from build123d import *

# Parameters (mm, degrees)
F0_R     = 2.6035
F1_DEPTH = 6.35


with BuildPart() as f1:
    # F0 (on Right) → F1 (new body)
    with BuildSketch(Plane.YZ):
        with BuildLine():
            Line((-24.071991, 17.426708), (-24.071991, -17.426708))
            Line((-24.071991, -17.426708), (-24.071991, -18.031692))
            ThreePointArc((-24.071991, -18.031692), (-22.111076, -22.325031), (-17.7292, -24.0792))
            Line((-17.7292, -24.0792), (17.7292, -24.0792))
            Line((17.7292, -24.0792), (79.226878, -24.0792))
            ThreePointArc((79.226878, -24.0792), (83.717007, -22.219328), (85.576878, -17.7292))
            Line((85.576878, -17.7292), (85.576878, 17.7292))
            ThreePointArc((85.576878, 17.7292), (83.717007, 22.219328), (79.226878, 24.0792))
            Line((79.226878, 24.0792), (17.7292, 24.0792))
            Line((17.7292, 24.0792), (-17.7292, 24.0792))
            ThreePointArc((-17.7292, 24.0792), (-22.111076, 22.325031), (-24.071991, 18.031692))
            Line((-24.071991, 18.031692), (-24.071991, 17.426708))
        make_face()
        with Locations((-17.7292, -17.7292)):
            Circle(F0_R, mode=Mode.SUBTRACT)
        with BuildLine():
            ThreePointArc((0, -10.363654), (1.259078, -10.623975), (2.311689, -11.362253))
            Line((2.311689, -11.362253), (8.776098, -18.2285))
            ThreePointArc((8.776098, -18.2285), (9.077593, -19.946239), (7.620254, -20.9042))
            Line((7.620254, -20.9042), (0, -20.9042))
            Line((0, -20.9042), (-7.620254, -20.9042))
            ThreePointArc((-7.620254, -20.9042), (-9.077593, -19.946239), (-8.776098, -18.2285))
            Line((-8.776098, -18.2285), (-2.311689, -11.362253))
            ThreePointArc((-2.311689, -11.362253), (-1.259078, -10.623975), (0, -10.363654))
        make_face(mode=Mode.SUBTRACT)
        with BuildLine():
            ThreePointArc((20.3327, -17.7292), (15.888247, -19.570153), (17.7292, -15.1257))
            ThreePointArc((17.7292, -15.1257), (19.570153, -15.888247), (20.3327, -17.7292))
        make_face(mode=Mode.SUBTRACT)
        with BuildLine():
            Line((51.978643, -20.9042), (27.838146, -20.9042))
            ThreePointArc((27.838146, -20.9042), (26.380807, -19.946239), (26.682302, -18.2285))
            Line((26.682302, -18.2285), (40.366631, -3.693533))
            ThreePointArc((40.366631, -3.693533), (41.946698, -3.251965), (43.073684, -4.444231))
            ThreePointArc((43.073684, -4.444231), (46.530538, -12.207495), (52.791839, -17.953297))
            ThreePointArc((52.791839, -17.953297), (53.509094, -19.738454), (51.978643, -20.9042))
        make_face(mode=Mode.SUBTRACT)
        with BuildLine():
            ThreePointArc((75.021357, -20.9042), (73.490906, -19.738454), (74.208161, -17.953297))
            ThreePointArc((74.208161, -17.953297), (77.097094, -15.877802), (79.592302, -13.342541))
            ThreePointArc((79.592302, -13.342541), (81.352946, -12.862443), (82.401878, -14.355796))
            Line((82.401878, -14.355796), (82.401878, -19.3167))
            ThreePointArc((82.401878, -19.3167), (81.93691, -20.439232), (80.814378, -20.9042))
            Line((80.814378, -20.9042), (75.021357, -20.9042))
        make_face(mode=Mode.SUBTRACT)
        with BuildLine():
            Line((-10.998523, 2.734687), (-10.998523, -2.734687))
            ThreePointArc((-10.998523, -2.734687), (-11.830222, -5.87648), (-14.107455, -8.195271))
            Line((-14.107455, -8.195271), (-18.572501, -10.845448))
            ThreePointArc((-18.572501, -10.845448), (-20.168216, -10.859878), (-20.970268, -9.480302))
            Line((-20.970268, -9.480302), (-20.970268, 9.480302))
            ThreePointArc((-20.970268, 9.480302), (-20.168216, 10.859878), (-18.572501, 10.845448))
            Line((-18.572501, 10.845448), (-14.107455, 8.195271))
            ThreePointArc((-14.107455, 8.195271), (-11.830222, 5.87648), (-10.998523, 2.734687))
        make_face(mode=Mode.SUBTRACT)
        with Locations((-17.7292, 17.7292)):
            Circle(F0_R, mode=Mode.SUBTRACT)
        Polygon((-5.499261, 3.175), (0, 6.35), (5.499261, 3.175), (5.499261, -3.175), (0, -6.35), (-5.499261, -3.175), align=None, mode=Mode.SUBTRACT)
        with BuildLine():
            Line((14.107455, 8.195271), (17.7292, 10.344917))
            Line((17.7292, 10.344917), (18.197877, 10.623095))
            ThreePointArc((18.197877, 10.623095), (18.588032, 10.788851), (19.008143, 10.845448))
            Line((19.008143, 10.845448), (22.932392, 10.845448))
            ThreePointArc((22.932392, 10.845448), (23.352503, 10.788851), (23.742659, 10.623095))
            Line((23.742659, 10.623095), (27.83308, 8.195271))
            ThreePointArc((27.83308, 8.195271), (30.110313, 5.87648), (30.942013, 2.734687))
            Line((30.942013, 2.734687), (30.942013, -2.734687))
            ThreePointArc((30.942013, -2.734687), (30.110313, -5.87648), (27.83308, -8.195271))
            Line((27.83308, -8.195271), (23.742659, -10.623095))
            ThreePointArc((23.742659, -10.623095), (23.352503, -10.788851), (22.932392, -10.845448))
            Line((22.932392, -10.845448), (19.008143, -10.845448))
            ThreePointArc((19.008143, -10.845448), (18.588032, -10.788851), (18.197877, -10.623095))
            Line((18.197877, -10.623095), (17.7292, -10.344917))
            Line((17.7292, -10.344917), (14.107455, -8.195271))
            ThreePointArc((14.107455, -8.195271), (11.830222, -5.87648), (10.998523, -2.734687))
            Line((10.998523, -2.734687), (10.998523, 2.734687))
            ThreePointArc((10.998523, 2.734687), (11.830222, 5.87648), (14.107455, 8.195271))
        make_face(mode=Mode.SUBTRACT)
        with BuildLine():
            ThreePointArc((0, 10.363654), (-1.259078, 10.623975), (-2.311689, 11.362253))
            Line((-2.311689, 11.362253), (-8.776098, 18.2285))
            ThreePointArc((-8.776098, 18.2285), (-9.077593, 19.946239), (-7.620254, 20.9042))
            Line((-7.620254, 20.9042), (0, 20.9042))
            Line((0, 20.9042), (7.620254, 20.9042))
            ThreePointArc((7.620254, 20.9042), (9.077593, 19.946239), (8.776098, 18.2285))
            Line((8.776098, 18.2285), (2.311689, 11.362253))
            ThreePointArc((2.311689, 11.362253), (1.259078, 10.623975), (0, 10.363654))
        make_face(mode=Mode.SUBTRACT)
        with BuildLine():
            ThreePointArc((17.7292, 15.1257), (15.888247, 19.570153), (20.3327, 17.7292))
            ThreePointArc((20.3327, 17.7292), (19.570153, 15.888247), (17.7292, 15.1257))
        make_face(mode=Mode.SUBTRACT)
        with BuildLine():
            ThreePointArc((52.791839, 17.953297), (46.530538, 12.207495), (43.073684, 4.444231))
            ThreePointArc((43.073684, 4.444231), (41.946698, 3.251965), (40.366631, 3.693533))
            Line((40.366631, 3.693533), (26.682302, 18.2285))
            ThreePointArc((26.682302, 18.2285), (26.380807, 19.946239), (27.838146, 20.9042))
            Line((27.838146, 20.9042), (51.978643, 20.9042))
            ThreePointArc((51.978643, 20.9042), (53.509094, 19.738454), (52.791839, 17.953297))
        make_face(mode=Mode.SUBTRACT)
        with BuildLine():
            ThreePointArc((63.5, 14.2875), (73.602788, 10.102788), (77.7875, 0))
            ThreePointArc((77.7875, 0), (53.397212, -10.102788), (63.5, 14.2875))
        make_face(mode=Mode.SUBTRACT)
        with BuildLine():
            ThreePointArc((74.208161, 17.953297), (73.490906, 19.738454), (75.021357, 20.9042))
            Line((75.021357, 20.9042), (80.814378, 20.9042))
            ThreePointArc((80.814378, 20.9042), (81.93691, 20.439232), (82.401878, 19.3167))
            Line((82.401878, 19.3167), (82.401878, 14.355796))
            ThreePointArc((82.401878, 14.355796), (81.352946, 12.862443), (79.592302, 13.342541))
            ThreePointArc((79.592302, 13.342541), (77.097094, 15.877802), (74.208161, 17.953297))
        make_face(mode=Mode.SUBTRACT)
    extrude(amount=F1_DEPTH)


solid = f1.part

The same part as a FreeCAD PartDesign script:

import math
import FreeCAD as App
import Part
import Sketcher
Q = App.Units.Quantity

doc = App.newDocument("Part")
params = doc.addObject("Spreadsheet::Sheet", "Params")
for row, (alias, value) in enumerate([
    ("sketch1_radius", "0.25 in"),
    ("sketch1_diameter", "0.205 in"),
    ("sketch1_radius2", "0.0625 in"),
    ("sketch1_radius3", "0.8230001 in"),
    ("sketch1_radius4", "0.0624999 in"),
    ("pad1_length", "0.25 in"),
], start=1):
    params.set(f"A{row}", alias)
    params.set(f"B{row}", "=" + value)
    params.setAlias(f"B{row}", alias)

body = doc.addObject("PartDesign::Body", "Body")

# Sketch on YZ plane
sketch1 = body.newObject("Sketcher::SketchObject", "Sketch")
sketch1.AttachmentSupport = (doc.getObject("YZ_Plane"), [""])
sketch1.MapMode = "FlatFace"
sketch1.addGeometry(Part.ArcOfCircle(Part.Circle(App.Vector(-17.7, -17.7, 0), App.Vector(0, 0, 1), 6.3), math.radians(-177), math.radians(-90)), False)
sketch1.addGeometry(Part.LineSegment(App.Vector(-17.7, -24.1, 0), App.Vector(79.2, -24.1, 0)), False)
sketch1.addGeometry(Part.ArcOfCircle(Part.Circle(App.Vector(79.2, -17.7, 0), App.Vector(0, 0, 1), 6.3), math.radians(-90), math.radians(0)), False)
sketch1.addGeometry(Part.LineSegment(App.Vector(85.6, -17.7, 0), App.Vector(85.6, 17.7, 0)), False)
sketch1.addGeometry(Part.ArcOfCircle(Part.Circle(App.Vector(79.2, 17.7, 0), App.Vector(0, 0, 1), 6.3), math.radians(0), math.radians(90)), False)
sketch1.addGeometry(Part.LineSegment(App.Vector(79.2, 24.1, 0), App.Vector(-17.7, 24.1, 0)), False)
sketch1.addGeometry(Part.ArcOfCircle(Part.Circle(App.Vector(-17.7, 17.7, 0), App.Vector(0, 0, 1), 6.3), math.radians(90), math.radians(177)), False)
sketch1.addGeometry(Part.LineSegment(App.Vector(-24.1, 18, 0), App.Vector(-24.1, -18, 0)), False)
sketch1.addGeometry(Part.Circle(App.Vector(-17.7, -17.7, 0), App.Vector(0, 0, 1), 2.6), False)
sketch1.addGeometry(Part.ArcOfCircle(Part.Circle(App.Vector(0, -13.5, 0), App.Vector(0, 0, 1), 3.2), math.radians(90), math.radians(137)), False)
sketch1.addGeometry(Part.ArcOfCircle(Part.Circle(App.Vector(0, -13.5, 0), App.Vector(0, 0, 1), 3.2), math.radians(43), math.radians(90)), False)
sketch1.addGeometry(Part.LineSegment(App.Vector(2.3, -11.4, 0), App.Vector(8.8, -18.2, 0)), False)
sketch1.addGeometry(Part.ArcOfCircle(Part.Circle(App.Vector(7.6, -19.3, 0), App.Vector(0, 0, 1), 1.6), math.radians(-90), math.radians(43)), False)
sketch1.addGeometry(Part.LineSegment(App.Vector(7.6, -20.9, 0), App.Vector(-7.6, -20.9, 0)), False)
sketch1.addGeometry(Part.ArcOfCircle(Part.Circle(App.Vector(-7.6, -19.3, 0), App.Vector(0, 0, 1), 1.6), math.radians(137), math.radians(270)), False)
sketch1.addGeometry(Part.LineSegment(App.Vector(-8.8, -18.2, 0), App.Vector(-2.3, -11.4, 0)), False)
sketch1.addGeometry(Part.ArcOfCircle(Part.Circle(App.Vector(17.7, -17.7, 0), App.Vector(0, 0, 1), 2.6), math.radians(0), math.radians(90)), False)
sketch1.addGeometry(Part.ArcOfCircle(Part.Circle(App.Vector(17.7, -17.7, 0), App.Vector(0, 0, 1), 2.6), math.radians(90), math.radians(360)), False)
sketch1.addGeometry(Part.ArcOfCircle(Part.Circle(App.Vector(52, -19.3, 0), App.Vector(0, 0, 1), 1.6), math.radians(-90), math.radians(59)), False)
sketch1.addGeometry(Part.LineSegment(App.Vector(52, -20.9, 0), App.Vector(27.8, -20.9, 0)), False)
sketch1.addGeometry(Part.ArcOfCircle(Part.Circle(App.Vector(27.8, -19.3, 0), App.Vector(0, 0, 1), 1.6), math.radians(137), math.radians(270)), False)
sketch1.addGeometry(Part.LineSegment(App.Vector(26.7, -18.2, 0), App.Vector(40.4, -3.7, 0)), False)
sketch1.addGeometry(Part.ArcOfCircle(Part.Circle(App.Vector(41.5, -4.8, 0), App.Vector(0, 0, 1), 1.6), math.radians(12), math.radians(137)), False)
sketch1.addGeometry(Part.ArcOfCircle(Part.Circle(App.Vector(63.5, 0, 0), App.Vector(0, 0, 1), 20.9), math.radians(-168), math.radians(-121)), False)
sketch1.addGeometry(Part.LineSegment(App.Vector(80.8, -20.9, 0), App.Vector(75, -20.9, 0)), False)
sketch1.addGeometry(Part.ArcOfCircle(Part.Circle(App.Vector(75, -19.3, 0), App.Vector(0, 0, 1), 1.6), math.radians(121), math.radians(270)), False)
sketch1.addGeometry(Part.ArcOfCircle(Part.Circle(App.Vector(63.5, 0, 0), App.Vector(0, 0, 1), 20.9), math.radians(-59.19), math.radians(-39.66)), False)
sketch1.addGeometry(Part.ArcOfCircle(Part.Circle(App.Vector(80.8, -14.4, 0), App.Vector(0, 0, 1), 1.6), math.radians(0), math.radians(140)), False)
sketch1.addGeometry(Part.LineSegment(App.Vector(82.4, -14.4, 0), App.Vector(82.4, -19.3, 0)), False)
sketch1.addGeometry(Part.ArcOfCircle(Part.Circle(App.Vector(80.8, -19.3, 0), App.Vector(0, 0, 1), 1.6), math.radians(-90), math.radians(0)), False)
sketch1.addGeometry(Part.ArcOfCircle(Part.Circle(App.Vector(-17.3, 2.7, 0), App.Vector(0, 0, 1), 6.3), math.radians(0), math.radians(59)), False)
sketch1.addGeometry(Part.LineSegment(App.Vector(-11, 2.7, 0), App.Vector(-11, -2.7, 0)), False)
sketch1.addGeometry(Part.ArcOfCircle(Part.Circle(App.Vector(-17.3, -2.7, 0), App.Vector(0, 0, 1), 6.3), math.radians(-59), math.radians(0)), False)
sketch1.addGeometry(Part.LineSegment(App.Vector(-14.1, -8.2, 0), App.Vector(-18.6, -10.8, 0)), False)
sketch1.addGeometry(Part.ArcOfCircle(Part.Circle(App.Vector(-19.4, -9.5, 0), App.Vector(0, 0, 1), 1.6), math.radians(180), math.radians(301)), False)
sketch1.addGeometry(Part.LineSegment(App.Vector(-21, -9.5, 0), App.Vector(-21, 9.5, 0)), False)
sketch1.addGeometry(Part.ArcOfCircle(Part.Circle(App.Vector(-19.4, 9.5, 0), App.Vector(0, 0, 1), 1.6), math.radians(59), math.radians(180)), False)
sketch1.addGeometry(Part.LineSegment(App.Vector(-18.6, 10.8, 0), App.Vector(-14.1, 8.2, 0)), False)
sketch1.addGeometry(Part.LineSegment(App.Vector(-5.5, -3.2, 0), App.Vector(-5.5, 3.2, 0)), False)
sketch1.addGeometry(Part.LineSegment(App.Vector(-5.5, 3.2, 0), App.Vector(0, 6.3, 0)), False)
sketch1.addGeometry(Part.LineSegment(App.Vector(0, 6.3, 0), App.Vector(5.5, 3.2, 0)), False)
sketch1.addGeometry(Part.LineSegment(App.Vector(5.5, 3.2, 0), App.Vector(5.5, -3.2, 0)), False)
sketch1.addGeometry(Part.LineSegment(App.Vector(5.5, -3.2, 0), App.Vector(0, -6.3, 0)), False)
sketch1.addGeometry(Part.LineSegment(App.Vector(0, -6.3, 0), App.Vector(-5.5, -3.2, 0)), False)
sketch1.addGeometry(Part.ArcOfCircle(Part.Circle(App.Vector(17.3, 2.7, 0), App.Vector(0, 0, 1), 6.3), math.radians(121), math.radians(180)), False)
sketch1.addGeometry(Part.LineSegment(App.Vector(14.1, 8.2, 0), App.Vector(17.7, 10.3, 0)), False)
sketch1.addGeometry(Part.LineSegment(App.Vector(17.7, 10.3, 0), App.Vector(18.2, 10.6, 0)), False)
sketch1.addGeometry(Part.ArcOfCircle(Part.Circle(App.Vector(19, 9.3, 0), App.Vector(0, 0, 1), 1.6), math.radians(90), math.radians(121)), False)
sketch1.addGeometry(Part.LineSegment(App.Vector(19, 10.8, 0), App.Vector(22.9, 10.8, 0)), False)
sketch1.addGeometry(Part.ArcOfCircle(Part.Circle(App.Vector(22.9, 9.3, 0), App.Vector(0, 0, 1), 1.6), math.radians(59), math.radians(90)), False)
sketch1.addGeometry(Part.LineSegment(App.Vector(23.7, 10.6, 0), App.Vector(27.8, 8.2, 0)), False)
sketch1.addGeometry(Part.ArcOfCircle(Part.Circle(App.Vector(24.6, 2.7, 0), App.Vector(0, 0, 1), 6.3), math.radians(0), math.radians(59)), False)
sketch1.addGeometry(Part.LineSegment(App.Vector(30.9, 2.7, 0), App.Vector(30.9, -2.7, 0)), False)
sketch1.addGeometry(Part.ArcOfCircle(Part.Circle(App.Vector(24.6, -2.7, 0), App.Vector(0, 0, 1), 6.3), math.radians(-59), math.radians(0)), False)
sketch1.addGeometry(Part.LineSegment(App.Vector(27.8, -8.2, 0), App.Vector(23.7, -10.6, 0)), False)
sketch1.addGeometry(Part.ArcOfCircle(Part.Circle(App.Vector(22.9, -9.3, 0), App.Vector(0, 0, 1), 1.6), math.radians(-90), math.radians(-59)), False)
sketch1.addGeometry(Part.LineSegment(App.Vector(22.9, -10.8, 0), App.Vector(19, -10.8, 0)), False)
sketch1.addGeometry(Part.ArcOfCircle(Part.Circle(App.Vector(19, -9.3, 0), App.Vector(0, 0, 1), 1.6), math.radians(-121), math.radians(-90)), False)
sketch1.addGeometry(Part.LineSegment(App.Vector(18.2, -10.6, 0), App.Vector(17.7, -10.3, 0)), False)
sketch1.addGeometry(Part.LineSegment(App.Vector(17.7, -10.3, 0), App.Vector(14.1, -8.2, 0)), False)
sketch1.addGeometry(Part.ArcOfCircle(Part.Circle(App.Vector(17.3, -2.7, 0), App.Vector(0, 0, 1), 6.3), math.radians(180), math.radians(239)), False)
sketch1.addGeometry(Part.LineSegment(App.Vector(11, -2.7, 0), App.Vector(11, 2.7, 0)), False)
sketch1.addGeometry(Part.ArcOfCircle(Part.Circle(App.Vector(0, 13.5, 0), App.Vector(0, 0, 1), 3.2), math.radians(-90), math.radians(-43)), False)
sketch1.addGeometry(Part.ArcOfCircle(Part.Circle(App.Vector(0, 13.5, 0), App.Vector(0, 0, 1), 3.2), math.radians(-137), math.radians(-90)), False)
sketch1.addGeometry(Part.LineSegment(App.Vector(-2.3, 11.4, 0), App.Vector(-8.8, 18.2, 0)), False)
sketch1.addGeometry(Part.ArcOfCircle(Part.Circle(App.Vector(-7.6, 19.3, 0), App.Vector(0, 0, 1), 1.6), math.radians(90), math.radians(223)), False)
sketch1.addGeometry(Part.LineSegment(App.Vector(-7.6, 20.9, 0), App.Vector(7.6, 20.9, 0)), False)
sketch1.addGeometry(Part.ArcOfCircle(Part.Circle(App.Vector(7.6, 19.3, 0), App.Vector(0, 0, 1), 1.6), math.radians(-43), math.radians(90)), False)
sketch1.addGeometry(Part.LineSegment(App.Vector(8.8, 18.2, 0), App.Vector(2.3, 11.4, 0)), False)
sketch1.addGeometry(Part.Circle(App.Vector(-17.7, 17.7, 0), App.Vector(0, 0, 1), 2.6), False)
sketch1.addGeometry(Part.ArcOfCircle(Part.Circle(App.Vector(17.7, 17.7, 0), App.Vector(0, 0, 1), 2.6), math.radians(-90), math.radians(0)), False)
sketch1.addGeometry(Part.ArcOfCircle(Part.Circle(App.Vector(17.7, 17.7, 0), App.Vector(0, 0, 1), 2.6), math.radians(0), math.radians(270)), False)
sketch1.addGeometry(Part.ArcOfCircle(Part.Circle(App.Vector(63.5, 0, 0), App.Vector(0, 0, 1), 14.3), math.radians(90), math.radians(360)), False)
sketch1.addGeometry(Part.ArcOfCircle(Part.Circle(App.Vector(63.5, 0, 0), App.Vector(0, 0, 1), 14.3), math.radians(0), math.radians(90)), False)
sketch1.addGeometry(Part.ArcOfCircle(Part.Circle(App.Vector(52, 19.3, 0), App.Vector(0, 0, 1), 1.6), math.radians(-59), math.radians(90)), False)
sketch1.addGeometry(Part.ArcOfCircle(Part.Circle(App.Vector(63.5, 0, 0), App.Vector(0, 0, 1), 20.9), math.radians(121), math.radians(168)), False)
sketch1.addGeometry(Part.ArcOfCircle(Part.Circle(App.Vector(41.5, 4.8, 0), App.Vector(0, 0, 1), 1.6), math.radians(-137), math.radians(-12)), False)
sketch1.addGeometry(Part.LineSegment(App.Vector(40.4, 3.7, 0), App.Vector(26.7, 18.2, 0)), False)
sketch1.addGeometry(Part.ArcOfCircle(Part.Circle(App.Vector(27.8, 19.3, 0), App.Vector(0, 0, 1), 1.6), math.radians(90), math.radians(223)), False)
sketch1.addGeometry(Part.LineSegment(App.Vector(27.8, 20.9, 0), App.Vector(52, 20.9, 0)), False)
sketch1.addGeometry(Part.ArcOfCircle(Part.Circle(App.Vector(63.5, 0, 0), App.Vector(0, 0, 1), 20.9), math.radians(39.66), math.radians(59.19)), False)
sketch1.addGeometry(Part.ArcOfCircle(Part.Circle(App.Vector(75, 19.3, 0), App.Vector(0, 0, 1), 1.6), math.radians(90), math.radians(239)), False)
sketch1.addGeometry(Part.LineSegment(App.Vector(75, 20.9, 0), App.Vector(80.8, 20.9, 0)), False)
sketch1.addGeometry(Part.ArcOfCircle(Part.Circle(App.Vector(80.8, 19.3, 0), App.Vector(0, 0, 1), 1.6), math.radians(0), math.radians(90)), False)
sketch1.addGeometry(Part.LineSegment(App.Vector(82.4, 19.3, 0), App.Vector(82.4, 14.4, 0)), False)
sketch1.addGeometry(Part.ArcOfCircle(Part.Circle(App.Vector(80.8, 14.4, 0), App.Vector(0, 0, 1), 1.6), math.radians(-140), math.radians(0)), False)
sketch1.addConstraint(Sketcher.Constraint("Tangent", 0, 2, 1, 1))
sketch1.addConstraint(Sketcher.Constraint("Tangent", 1, 2, 2, 1))
sketch1.addConstraint(Sketcher.Constraint("Tangent", 2, 2, 3, 1))
sketch1.addConstraint(Sketcher.Constraint("Tangent", 3, 2, 4, 1))
sketch1.addConstraint(Sketcher.Constraint("Tangent", 4, 2, 5, 1))
sketch1.addConstraint(Sketcher.Constraint("Tangent", 5, 2, 6, 1))
sketch1.addConstraint(Sketcher.Constraint("Coincident", 6, 2, 7, 1))
sketch1.addConstraint(Sketcher.Constraint("Coincident", 7, 2, 0, 1))
sketch1.addConstraint(Sketcher.Constraint("Coincident", 9, 1, 10, 2))
sketch1.addConstraint(Sketcher.Constraint("Tangent", 10, 1, 11, 1))
sketch1.addConstraint(Sketcher.Constraint("Tangent", 11, 2, 12, 2))
sketch1.addConstraint(Sketcher.Constraint("Tangent", 12, 1, 13, 1))
sketch1.addConstraint(Sketcher.Constraint("Tangent", 13, 2, 14, 2))
sketch1.addConstraint(Sketcher.Constraint("Tangent", 14, 1, 15, 1))
sketch1.addConstraint(Sketcher.Constraint("Tangent", 15, 2, 9, 2))
sketch1.addConstraint(Sketcher.Constraint("Tangent", 16, 1, 17, 2))
sketch1.addConstraint(Sketcher.Constraint("Coincident", 17, 1, 16, 2))
sketch1.addConstraint(Sketcher.Constraint("Tangent", 18, 1, 19, 1))
sketch1.addConstraint(Sketcher.Constraint("Tangent", 19, 2, 20, 2))
sketch1.addConstraint(Sketcher.Constraint("Tangent", 20, 1, 21, 1))
sketch1.addConstraint(Sketcher.Constraint("Tangent", 21, 2, 22, 2))
sketch1.addConstraint(Sketcher.Constraint("Tangent", 22, 1, 23, 1))
sketch1.addConstraint(Sketcher.Constraint("Tangent", 23, 2, 18, 2))
sketch1.addConstraint(Sketcher.Constraint("Tangent", 24, 2, 25, 2))
sketch1.addConstraint(Sketcher.Constraint("Tangent", 25, 1, 26, 1))
sketch1.addConstraint(Sketcher.Constraint("Tangent", 26, 2, 27, 2))
sketch1.addConstraint(Sketcher.Constraint("Tangent", 27, 1, 28, 1))
sketch1.addConstraint(Sketcher.Constraint("Tangent", 28, 2, 29, 2))
sketch1.addConstraint(Sketcher.Constraint("Tangent", 29, 1, 24, 1))
sketch1.addConstraint(Sketcher.Constraint("Tangent", 30, 1, 31, 1))
sketch1.addConstraint(Sketcher.Constraint("Tangent", 31, 2, 32, 2))
sketch1.addConstraint(Sketcher.Constraint("Tangent", 32, 1, 33, 1))
sketch1.addConstraint(Sketcher.Constraint("Tangent", 33, 2, 34, 2))
sketch1.addConstraint(Sketcher.Constraint("Tangent", 34, 1, 35, 1))
sketch1.addConstraint(Sketcher.Constraint("Tangent", 35, 2, 36, 2))
sketch1.addConstraint(Sketcher.Constraint("Tangent", 36, 1, 37, 1))
sketch1.addConstraint(Sketcher.Constraint("Tangent", 37, 2, 30, 2))
sketch1.addConstraint(Sketcher.Constraint("Coincident", 38, 2, 39, 1))
sketch1.addConstraint(Sketcher.Constraint("Coincident", 39, 2, 40, 1))
sketch1.addConstraint(Sketcher.Constraint("Coincident", 40, 2, 41, 1))
sketch1.addConstraint(Sketcher.Constraint("Coincident", 41, 2, 42, 1))
sketch1.addConstraint(Sketcher.Constraint("Coincident", 42, 2, 43, 1))
sketch1.addConstraint(Sketcher.Constraint("Coincident", 43, 2, 38, 1))
sketch1.addConstraint(Sketcher.Constraint("Tangent", 44, 1, 45, 1))
sketch1.addConstraint(Sketcher.Constraint("Coincident", 45, 2, 46, 1))
sketch1.addConstraint(Sketcher.Constraint("Tangent", 46, 2, 47, 2))
sketch1.addConstraint(Sketcher.Constraint("Tangent", 47, 1, 48, 1))
sketch1.addConstraint(Sketcher.Constraint("Tangent", 48, 2, 49, 2))
sketch1.addConstraint(Sketcher.Constraint("Tangent", 49, 1, 50, 1))
sketch1.addConstraint(Sketcher.Constraint("Tangent", 50, 2, 51, 2))
sketch1.addConstraint(Sketcher.Constraint("Tangent", 51, 1, 52, 1))
sketch1.addConstraint(Sketcher.Constraint("Tangent", 52, 2, 53, 2))
sketch1.addConstraint(Sketcher.Constraint("Tangent", 53, 1, 54, 1))
sketch1.addConstraint(Sketcher.Constraint("Tangent", 54, 2, 55, 2))
sketch1.addConstraint(Sketcher.Constraint("Tangent", 55, 1, 56, 1))
sketch1.addConstraint(Sketcher.Constraint("Tangent", 56, 2, 57, 2))
sketch1.addConstraint(Sketcher.Constraint("Tangent", 57, 1, 58, 1))
sketch1.addConstraint(Sketcher.Constraint("Coincident", 58, 2, 59, 1))
sketch1.addConstraint(Sketcher.Constraint("Tangent", 59, 2, 60, 2))
sketch1.addConstraint(Sketcher.Constraint("Tangent", 60, 1, 61, 1))
sketch1.addConstraint(Sketcher.Constraint("Tangent", 61, 2, 44, 2))
sketch1.addConstraint(Sketcher.Constraint("Coincident", 62, 1, 63, 2))
sketch1.addConstraint(Sketcher.Constraint("Tangent", 63, 1, 64, 1))
sketch1.addConstraint(Sketcher.Constraint("Tangent", 64, 2, 65, 2))
sketch1.addConstraint(Sketcher.Constraint("Tangent", 65, 1, 66, 1))
sketch1.addConstraint(Sketcher.Constraint("Tangent", 66, 2, 67, 2))
sketch1.addConstraint(Sketcher.Constraint("Tangent", 67, 1, 68, 1))
sketch1.addConstraint(Sketcher.Constraint("Tangent", 68, 2, 62, 2))
sketch1.addConstraint(Sketcher.Constraint("Tangent", 70, 1, 71, 2))
sketch1.addConstraint(Sketcher.Constraint("Coincident", 71, 1, 70, 2))
sketch1.addConstraint(Sketcher.Constraint("Tangent", 72, 1, 73, 2))
sketch1.addConstraint(Sketcher.Constraint("Coincident", 73, 1, 72, 2))
sketch1.addConstraint(Sketcher.Constraint("Tangent", 74, 1, 75, 1))
sketch1.addConstraint(Sketcher.Constraint("Tangent", 75, 2, 76, 2))
sketch1.addConstraint(Sketcher.Constraint("Tangent", 76, 1, 77, 1))
sketch1.addConstraint(Sketcher.Constraint("Tangent", 77, 2, 78, 2))
sketch1.addConstraint(Sketcher.Constraint("Tangent", 78, 1, 79, 1))
sketch1.addConstraint(Sketcher.Constraint("Tangent", 79, 2, 74, 2))
sketch1.addConstraint(Sketcher.Constraint("Tangent", 80, 2, 81, 2))
sketch1.addConstraint(Sketcher.Constraint("Tangent", 81, 1, 82, 1))
sketch1.addConstraint(Sketcher.Constraint("Tangent", 82, 2, 83, 2))
sketch1.addConstraint(Sketcher.Constraint("Tangent", 83, 1, 84, 1))
sketch1.addConstraint(Sketcher.Constraint("Tangent", 84, 2, 85, 2))
sketch1.addConstraint(Sketcher.Constraint("Tangent", 85, 1, 80, 1))
sketch1.addConstraint(Sketcher.Constraint("Horizontal", 1))
sketch1.addConstraint(Sketcher.Constraint("Vertical", 3))
sketch1.addConstraint(Sketcher.Constraint("Horizontal", 5))
sketch1.addConstraint(Sketcher.Constraint("Vertical", 7))
sketch1.addConstraint(Sketcher.Constraint("Horizontal", 13))
sketch1.addConstraint(Sketcher.Constraint("Horizontal", 19))
sketch1.addConstraint(Sketcher.Constraint("Horizontal", 24))
sketch1.addConstraint(Sketcher.Constraint("Vertical", 28))
sketch1.addConstraint(Sketcher.Constraint("Vertical", 31))
sketch1.addConstraint(Sketcher.Constraint("Vertical", 35))
sketch1.addConstraint(Sketcher.Constraint("Vertical", 38))
sketch1.addConstraint(Sketcher.Constraint("Vertical", 41))
sketch1.addConstraint(Sketcher.Constraint("Horizontal", 48))
sketch1.addConstraint(Sketcher.Constraint("Vertical", 52))
sketch1.addConstraint(Sketcher.Constraint("Horizontal", 56))
sketch1.addConstraint(Sketcher.Constraint("Vertical", 61))
sketch1.addConstraint(Sketcher.Constraint("Horizontal", 66))
sketch1.addConstraint(Sketcher.Constraint("Horizontal", 79))
sketch1.addConstraint(Sketcher.Constraint("Horizontal", 82))
sketch1.addConstraint(Sketcher.Constraint("Vertical", 84))
sketch1.addConstraint(Sketcher.Constraint("Coincident", 8, 3, 0, 3))
sketch1.addConstraint(Sketcher.Constraint("Coincident", 10, 3, 9, 3))
sketch1.addConstraint(Sketcher.Constraint("Coincident", 63, 3, 62, 3))
sketch1.addConstraint(Sketcher.Constraint("Coincident", 69, 3, 6, 3))
sketch1.addConstraint(Sketcher.Constraint("Coincident", 72, 3, 23, 3))
sketch1.addConstraint(Sketcher.Constraint("Coincident", 75, 3, 23, 3))
sketch1.addConstraint(Sketcher.Constraint("Equal", 0, 2))
sketch1.addConstraint(Sketcher.Constraint("Equal", 2, 4))
sketch1.addConstraint(Sketcher.Constraint("Equal", 4, 6))
sketch1.addConstraint(Sketcher.Constraint("Equal", 12, 14))
sketch1.addConstraint(Sketcher.Constraint("Equal", 8, 16))
sketch1.addConstraint(Sketcher.Constraint("Equal", 14, 18))
sketch1.addConstraint(Sketcher.Constraint("Equal", 18, 20))
sketch1.addConstraint(Sketcher.Constraint("Equal", 20, 22))
sketch1.addConstraint(Sketcher.Constraint("Equal", 22, 25))
sketch1.addConstraint(Sketcher.Constraint("Equal", 25, 27))
sketch1.addConstraint(Sketcher.Constraint("Equal", 27, 29))
sketch1.addConstraint(Sketcher.Constraint("Equal", 30, 32))
sketch1.addConstraint(Sketcher.Constraint("Equal", 29, 34))
sketch1.addConstraint(Sketcher.Constraint("Equal", 34, 36))
sketch1.addConstraint(Sketcher.Constraint("Equal", 32, 44))
sketch1.addConstraint(Sketcher.Constraint("Equal", 6, 51))
sketch1.addConstraint(Sketcher.Constraint("Equal", 51, 53))
sketch1.addConstraint(Sketcher.Constraint("Equal", 49, 55))
sketch1.addConstraint(Sketcher.Constraint("Equal", 47, 57))
sketch1.addConstraint(Sketcher.Constraint("Equal", 44, 60))
sketch1.addConstraint(Sketcher.Constraint("Equal", 10, 62))
sketch1.addConstraint(Sketcher.Constraint("Equal", 36, 65))
sketch1.addConstraint(Sketcher.Constraint("Equal", 65, 67))
sketch1.addConstraint(Sketcher.Constraint("Equal", 17, 69))
sketch1.addConstraint(Sketcher.Constraint("Equal", 69, 70))
sketch1.addConstraint(Sketcher.Constraint("Equal", 67, 74))
sketch1.addConstraint(Sketcher.Constraint("Equal", 23, 75))
sketch1.addConstraint(Sketcher.Constraint("Equal", 74, 76))
sketch1.addConstraint(Sketcher.Constraint("Equal", 76, 78))
sketch1.addConstraint(Sketcher.Constraint("Equal", 26, 80))
sketch1.addConstraint(Sketcher.Constraint("Equal", 78, 81))
sketch1.addConstraint(Sketcher.Constraint("Equal", 81, 83))
sketch1.addConstraint(Sketcher.Constraint("Equal", 83, 85))
sketch1.addConstraint(Sketcher.Constraint("Symmetric", 6, 3, 16, 3, -1, 1))
sketch1.addConstraint(Sketcher.Constraint("Symmetric", 32, 3, 44, 3, -1, 1))
sketch1.addConstraint(Sketcher.Constraint("Symmetric", 9, 3, 62, 3, -1, 1))
sketch1.addConstraint(Sketcher.Constraint("Symmetric", 12, 3, 65, 3, -1, 1))
sketch1.addConstraint(Sketcher.Constraint("Symmetric", 0, 3, 70, 3, -1, 1))
sketch1.addConstraint(Sketcher.Constraint("Symmetric", 38, 2, 41, 2, -1, 1))
sketch1.addConstraint(Sketcher.Constraint("Symmetric", 39, 2, 42, 2, -1, 1))
sketch1.addConstraint(Sketcher.Constraint("Symmetric", 37, 2, 59, 2, -1, 1))
sketch1.addConstraint(Sketcher.Constraint("Symmetric", 0, 3, 16, 3, -2))
sketch1.addConstraint(Sketcher.Constraint("Symmetric", 11, 2, 14, 1, -2))
sketch1.addConstraint(Sketcher.Constraint("Symmetric", 37, 2, 44, 1, -2))
sketch1.addConstraint(Sketcher.Constraint("Symmetric", 49, 3, 55, 3, -1))
sketch1.addConstraint(Sketcher.Constraint("Symmetric", 18, 3, 74, 3, -1))
sketch1.addConstraint(Sketcher.Constraint("Symmetric", 26, 3, 80, 3, -1))
sketch1.addConstraint(Sketcher.Constraint("Symmetric", 29, 3, 83, 3, -1))
sketch1.addConstraint(Sketcher.Constraint("Symmetric", 21, 2, 76, 1, -1))
sketch1.addConstraint(Sketcher.Constraint("PointOnObject", 9, 1, -2))
sketch1.addConstraint(Sketcher.Constraint("PointOnObject", 39, 2, -2))
sketch1.addConstraint(Sketcher.Constraint("PointOnObject", 62, 1, -2))
sketch1.addConstraint(Sketcher.Constraint("PointOnObject", 73, 1, -1))
sketch1.addConstraint(Sketcher.Constraint("Parallel", 15, 21))
sketch1.addConstraint(Sketcher.Constraint("Parallel", 40, 43))
sketch1.addConstraint(Sketcher.Constraint("Parallel", 33, 45))
sketch1.addConstraint(Sketcher.Constraint("Parallel", 45, 46))
sketch1.addConstraint(Sketcher.Constraint("Parallel", 37, 50))
sketch1.addConstraint(Sketcher.Constraint("Parallel", 46, 54))
sketch1.addConstraint(Sketcher.Constraint("Parallel", 50, 58))
sketch1.addConstraint(Sketcher.Constraint("Parallel", 21, 68))
sketch1.addConstraint(Sketcher.Constraint("Horizontal", 14, 3, 18, 3))
sketch1.addConstraint(Sketcher.Constraint("Horizontal", 20, 3, 25, 3))
sketch1.addConstraint(Sketcher.Constraint("Horizontal", 2, 2, 16, 1))
sketch1.addConstraint(Sketcher.Constraint("Horizontal", 23, 2, 25, 1))
sketch1.addConstraint(Sketcher.Constraint("Horizontal", 51, 3, 30, 1))
sketch1.addConstraint(Sketcher.Constraint("Horizontal", 38, 2, 40, 2))
sketch1.addConstraint(Sketcher.Constraint("Horizontal", 36, 1, 47, 1))
sketch1.addConstraint(Sketcher.Constraint("Horizontal", 46, 2, 49, 1))
sketch1.addConstraint(Sketcher.Constraint("Horizontal", 44, 1, 50, 2))
sketch1.addConstraint(Sketcher.Constraint("Horizontal", 3, 2, 71, 1))
sketch1.addConstraint(Sketcher.Constraint("Vertical", 71, 3, 17, 1))
sketch1.addConstraint(Sketcher.Constraint("Vertical", 17, 1, 45, 2))
sketch1.addConstraint(Sketcher.Constraint("Vertical", 45, 2, 58, 2))
sketch1.addConstraint(Sketcher.Constraint("Vertical", 58, 2, 70, 1))
sketch1.addConstraint(Sketcher.Constraint("Vertical", 75, 3, 72, 1))
sketch1.addConstraint(Sketcher.Constraint("Radius", 0, Q("0.25 in")))
sketch1.addConstraint(Sketcher.Constraint("Diameter", 8, Q("0.205 in")))
sketch1.addConstraint(Sketcher.Constraint("Angle", 39, Q("30.000001 deg")))
sketch1.addConstraint(Sketcher.Constraint("Radius", 12, Q("0.0625 in")))
sketch1.addConstraint(Sketcher.Constraint("Radius", 23, Q("0.8230001 in")))
sketch1.addConstraint(Sketcher.Constraint("Radius", 47, Q("0.0624999 in")))
sketch1.addConstraint(Sketcher.Constraint("Radius", 72, Q("0.5625 in")))
sketch1.addConstraint(Sketcher.Constraint("DistanceY", 38, 1, 38, 2, Q("0.25 in")))
sketch1.addConstraint(Sketcher.Constraint("DistanceX", -1, 1, 23, 3, Q("2.5000001 in")))
sketch1.addConstraint(Sketcher.Constraint("Distance", 39, Q("0.25 in")))
sketch1.addConstraint(Sketcher.Constraint("DistanceY", 3, 1, 3, 2, Q("1.396 in")))
sketch1.addConstraint(Sketcher.Constraint("DistanceX", 0, 3, -1, 1, Q("0.698 in")))
sketch1.addConstraint(Sketcher.Constraint("DistanceY", 12, 1, -1, 1, Q("0.823 in")))
sketch1.addConstraint(Sketcher.Constraint("Radius", 9, Q("3.174992 mm")))
sketch1.addConstraint(Sketcher.Constraint("Radius", 26, Q("20.904238 mm")))
sketch1.addConstraint(Sketcher.Constraint("DistanceX", 24, 2, 24, 1, Q("5.793021 mm")))
sketch1.addConstraint(Sketcher.Constraint("DistanceX", 48, 1, 48, 2, Q("3.924249 mm")))
sketch1.addConstraint(Sketcher.Constraint("DistanceY", 11, 2, -1, 1, Q("18.2285 mm")))
sketch1.addConstraint(Sketcher.Constraint("DistanceX", 33, 2, -1, 1, Q("18.572501 mm")))
sketch1.addConstraint(Sketcher.Constraint("DistanceX", -1, 1, 77, 2, Q("26.682302 mm")))
sketch1.addConstraint(Sketcher.Constraint("Distance", 11, Q("9.430479 mm")))
sketch1.addConstraint(Sketcher.Constraint("Distance", 33, Q("5.192309 mm")))
sketch1.addConstraint(Sketcher.Constraint("DistanceX", 1, 1, 1, 2, Q("96.956078 mm")))
sketch1.addConstraint(Sketcher.Constraint("DistanceY", 7, 2, 7, 1, Q("36.063384 mm")))
sketch1.addConstraint(Sketcher.Constraint("DistanceY", 31, 2, 31, 1, Q("5.469374 mm")))
sketch1.addConstraint(Sketcher.Constraint("DistanceY", 35, 1, 35, 2, Q("18.960604 mm")))
sketch1.addConstraint(Sketcher.Constraint("DistanceX", -1, 1, 27, 3, Q("80.814379 mm")))
sketch1.setExpression("Constraints[186]", "Params.sketch1_radius")
sketch1.setExpression("Constraints[187]", "Params.sketch1_diameter")
sketch1.setExpression("Constraints[189]", "Params.sketch1_radius2")
sketch1.setExpression("Constraints[190]", "Params.sketch1_radius3")
sketch1.setExpression("Constraints[191]", "Params.sketch1_radius4")
pad1 = body.newObject("PartDesign::Pad", "Pad")
pad1.Profile = sketch1
pad1.setExpression("Length", "Params.pad1_length")

doc.recompute()
